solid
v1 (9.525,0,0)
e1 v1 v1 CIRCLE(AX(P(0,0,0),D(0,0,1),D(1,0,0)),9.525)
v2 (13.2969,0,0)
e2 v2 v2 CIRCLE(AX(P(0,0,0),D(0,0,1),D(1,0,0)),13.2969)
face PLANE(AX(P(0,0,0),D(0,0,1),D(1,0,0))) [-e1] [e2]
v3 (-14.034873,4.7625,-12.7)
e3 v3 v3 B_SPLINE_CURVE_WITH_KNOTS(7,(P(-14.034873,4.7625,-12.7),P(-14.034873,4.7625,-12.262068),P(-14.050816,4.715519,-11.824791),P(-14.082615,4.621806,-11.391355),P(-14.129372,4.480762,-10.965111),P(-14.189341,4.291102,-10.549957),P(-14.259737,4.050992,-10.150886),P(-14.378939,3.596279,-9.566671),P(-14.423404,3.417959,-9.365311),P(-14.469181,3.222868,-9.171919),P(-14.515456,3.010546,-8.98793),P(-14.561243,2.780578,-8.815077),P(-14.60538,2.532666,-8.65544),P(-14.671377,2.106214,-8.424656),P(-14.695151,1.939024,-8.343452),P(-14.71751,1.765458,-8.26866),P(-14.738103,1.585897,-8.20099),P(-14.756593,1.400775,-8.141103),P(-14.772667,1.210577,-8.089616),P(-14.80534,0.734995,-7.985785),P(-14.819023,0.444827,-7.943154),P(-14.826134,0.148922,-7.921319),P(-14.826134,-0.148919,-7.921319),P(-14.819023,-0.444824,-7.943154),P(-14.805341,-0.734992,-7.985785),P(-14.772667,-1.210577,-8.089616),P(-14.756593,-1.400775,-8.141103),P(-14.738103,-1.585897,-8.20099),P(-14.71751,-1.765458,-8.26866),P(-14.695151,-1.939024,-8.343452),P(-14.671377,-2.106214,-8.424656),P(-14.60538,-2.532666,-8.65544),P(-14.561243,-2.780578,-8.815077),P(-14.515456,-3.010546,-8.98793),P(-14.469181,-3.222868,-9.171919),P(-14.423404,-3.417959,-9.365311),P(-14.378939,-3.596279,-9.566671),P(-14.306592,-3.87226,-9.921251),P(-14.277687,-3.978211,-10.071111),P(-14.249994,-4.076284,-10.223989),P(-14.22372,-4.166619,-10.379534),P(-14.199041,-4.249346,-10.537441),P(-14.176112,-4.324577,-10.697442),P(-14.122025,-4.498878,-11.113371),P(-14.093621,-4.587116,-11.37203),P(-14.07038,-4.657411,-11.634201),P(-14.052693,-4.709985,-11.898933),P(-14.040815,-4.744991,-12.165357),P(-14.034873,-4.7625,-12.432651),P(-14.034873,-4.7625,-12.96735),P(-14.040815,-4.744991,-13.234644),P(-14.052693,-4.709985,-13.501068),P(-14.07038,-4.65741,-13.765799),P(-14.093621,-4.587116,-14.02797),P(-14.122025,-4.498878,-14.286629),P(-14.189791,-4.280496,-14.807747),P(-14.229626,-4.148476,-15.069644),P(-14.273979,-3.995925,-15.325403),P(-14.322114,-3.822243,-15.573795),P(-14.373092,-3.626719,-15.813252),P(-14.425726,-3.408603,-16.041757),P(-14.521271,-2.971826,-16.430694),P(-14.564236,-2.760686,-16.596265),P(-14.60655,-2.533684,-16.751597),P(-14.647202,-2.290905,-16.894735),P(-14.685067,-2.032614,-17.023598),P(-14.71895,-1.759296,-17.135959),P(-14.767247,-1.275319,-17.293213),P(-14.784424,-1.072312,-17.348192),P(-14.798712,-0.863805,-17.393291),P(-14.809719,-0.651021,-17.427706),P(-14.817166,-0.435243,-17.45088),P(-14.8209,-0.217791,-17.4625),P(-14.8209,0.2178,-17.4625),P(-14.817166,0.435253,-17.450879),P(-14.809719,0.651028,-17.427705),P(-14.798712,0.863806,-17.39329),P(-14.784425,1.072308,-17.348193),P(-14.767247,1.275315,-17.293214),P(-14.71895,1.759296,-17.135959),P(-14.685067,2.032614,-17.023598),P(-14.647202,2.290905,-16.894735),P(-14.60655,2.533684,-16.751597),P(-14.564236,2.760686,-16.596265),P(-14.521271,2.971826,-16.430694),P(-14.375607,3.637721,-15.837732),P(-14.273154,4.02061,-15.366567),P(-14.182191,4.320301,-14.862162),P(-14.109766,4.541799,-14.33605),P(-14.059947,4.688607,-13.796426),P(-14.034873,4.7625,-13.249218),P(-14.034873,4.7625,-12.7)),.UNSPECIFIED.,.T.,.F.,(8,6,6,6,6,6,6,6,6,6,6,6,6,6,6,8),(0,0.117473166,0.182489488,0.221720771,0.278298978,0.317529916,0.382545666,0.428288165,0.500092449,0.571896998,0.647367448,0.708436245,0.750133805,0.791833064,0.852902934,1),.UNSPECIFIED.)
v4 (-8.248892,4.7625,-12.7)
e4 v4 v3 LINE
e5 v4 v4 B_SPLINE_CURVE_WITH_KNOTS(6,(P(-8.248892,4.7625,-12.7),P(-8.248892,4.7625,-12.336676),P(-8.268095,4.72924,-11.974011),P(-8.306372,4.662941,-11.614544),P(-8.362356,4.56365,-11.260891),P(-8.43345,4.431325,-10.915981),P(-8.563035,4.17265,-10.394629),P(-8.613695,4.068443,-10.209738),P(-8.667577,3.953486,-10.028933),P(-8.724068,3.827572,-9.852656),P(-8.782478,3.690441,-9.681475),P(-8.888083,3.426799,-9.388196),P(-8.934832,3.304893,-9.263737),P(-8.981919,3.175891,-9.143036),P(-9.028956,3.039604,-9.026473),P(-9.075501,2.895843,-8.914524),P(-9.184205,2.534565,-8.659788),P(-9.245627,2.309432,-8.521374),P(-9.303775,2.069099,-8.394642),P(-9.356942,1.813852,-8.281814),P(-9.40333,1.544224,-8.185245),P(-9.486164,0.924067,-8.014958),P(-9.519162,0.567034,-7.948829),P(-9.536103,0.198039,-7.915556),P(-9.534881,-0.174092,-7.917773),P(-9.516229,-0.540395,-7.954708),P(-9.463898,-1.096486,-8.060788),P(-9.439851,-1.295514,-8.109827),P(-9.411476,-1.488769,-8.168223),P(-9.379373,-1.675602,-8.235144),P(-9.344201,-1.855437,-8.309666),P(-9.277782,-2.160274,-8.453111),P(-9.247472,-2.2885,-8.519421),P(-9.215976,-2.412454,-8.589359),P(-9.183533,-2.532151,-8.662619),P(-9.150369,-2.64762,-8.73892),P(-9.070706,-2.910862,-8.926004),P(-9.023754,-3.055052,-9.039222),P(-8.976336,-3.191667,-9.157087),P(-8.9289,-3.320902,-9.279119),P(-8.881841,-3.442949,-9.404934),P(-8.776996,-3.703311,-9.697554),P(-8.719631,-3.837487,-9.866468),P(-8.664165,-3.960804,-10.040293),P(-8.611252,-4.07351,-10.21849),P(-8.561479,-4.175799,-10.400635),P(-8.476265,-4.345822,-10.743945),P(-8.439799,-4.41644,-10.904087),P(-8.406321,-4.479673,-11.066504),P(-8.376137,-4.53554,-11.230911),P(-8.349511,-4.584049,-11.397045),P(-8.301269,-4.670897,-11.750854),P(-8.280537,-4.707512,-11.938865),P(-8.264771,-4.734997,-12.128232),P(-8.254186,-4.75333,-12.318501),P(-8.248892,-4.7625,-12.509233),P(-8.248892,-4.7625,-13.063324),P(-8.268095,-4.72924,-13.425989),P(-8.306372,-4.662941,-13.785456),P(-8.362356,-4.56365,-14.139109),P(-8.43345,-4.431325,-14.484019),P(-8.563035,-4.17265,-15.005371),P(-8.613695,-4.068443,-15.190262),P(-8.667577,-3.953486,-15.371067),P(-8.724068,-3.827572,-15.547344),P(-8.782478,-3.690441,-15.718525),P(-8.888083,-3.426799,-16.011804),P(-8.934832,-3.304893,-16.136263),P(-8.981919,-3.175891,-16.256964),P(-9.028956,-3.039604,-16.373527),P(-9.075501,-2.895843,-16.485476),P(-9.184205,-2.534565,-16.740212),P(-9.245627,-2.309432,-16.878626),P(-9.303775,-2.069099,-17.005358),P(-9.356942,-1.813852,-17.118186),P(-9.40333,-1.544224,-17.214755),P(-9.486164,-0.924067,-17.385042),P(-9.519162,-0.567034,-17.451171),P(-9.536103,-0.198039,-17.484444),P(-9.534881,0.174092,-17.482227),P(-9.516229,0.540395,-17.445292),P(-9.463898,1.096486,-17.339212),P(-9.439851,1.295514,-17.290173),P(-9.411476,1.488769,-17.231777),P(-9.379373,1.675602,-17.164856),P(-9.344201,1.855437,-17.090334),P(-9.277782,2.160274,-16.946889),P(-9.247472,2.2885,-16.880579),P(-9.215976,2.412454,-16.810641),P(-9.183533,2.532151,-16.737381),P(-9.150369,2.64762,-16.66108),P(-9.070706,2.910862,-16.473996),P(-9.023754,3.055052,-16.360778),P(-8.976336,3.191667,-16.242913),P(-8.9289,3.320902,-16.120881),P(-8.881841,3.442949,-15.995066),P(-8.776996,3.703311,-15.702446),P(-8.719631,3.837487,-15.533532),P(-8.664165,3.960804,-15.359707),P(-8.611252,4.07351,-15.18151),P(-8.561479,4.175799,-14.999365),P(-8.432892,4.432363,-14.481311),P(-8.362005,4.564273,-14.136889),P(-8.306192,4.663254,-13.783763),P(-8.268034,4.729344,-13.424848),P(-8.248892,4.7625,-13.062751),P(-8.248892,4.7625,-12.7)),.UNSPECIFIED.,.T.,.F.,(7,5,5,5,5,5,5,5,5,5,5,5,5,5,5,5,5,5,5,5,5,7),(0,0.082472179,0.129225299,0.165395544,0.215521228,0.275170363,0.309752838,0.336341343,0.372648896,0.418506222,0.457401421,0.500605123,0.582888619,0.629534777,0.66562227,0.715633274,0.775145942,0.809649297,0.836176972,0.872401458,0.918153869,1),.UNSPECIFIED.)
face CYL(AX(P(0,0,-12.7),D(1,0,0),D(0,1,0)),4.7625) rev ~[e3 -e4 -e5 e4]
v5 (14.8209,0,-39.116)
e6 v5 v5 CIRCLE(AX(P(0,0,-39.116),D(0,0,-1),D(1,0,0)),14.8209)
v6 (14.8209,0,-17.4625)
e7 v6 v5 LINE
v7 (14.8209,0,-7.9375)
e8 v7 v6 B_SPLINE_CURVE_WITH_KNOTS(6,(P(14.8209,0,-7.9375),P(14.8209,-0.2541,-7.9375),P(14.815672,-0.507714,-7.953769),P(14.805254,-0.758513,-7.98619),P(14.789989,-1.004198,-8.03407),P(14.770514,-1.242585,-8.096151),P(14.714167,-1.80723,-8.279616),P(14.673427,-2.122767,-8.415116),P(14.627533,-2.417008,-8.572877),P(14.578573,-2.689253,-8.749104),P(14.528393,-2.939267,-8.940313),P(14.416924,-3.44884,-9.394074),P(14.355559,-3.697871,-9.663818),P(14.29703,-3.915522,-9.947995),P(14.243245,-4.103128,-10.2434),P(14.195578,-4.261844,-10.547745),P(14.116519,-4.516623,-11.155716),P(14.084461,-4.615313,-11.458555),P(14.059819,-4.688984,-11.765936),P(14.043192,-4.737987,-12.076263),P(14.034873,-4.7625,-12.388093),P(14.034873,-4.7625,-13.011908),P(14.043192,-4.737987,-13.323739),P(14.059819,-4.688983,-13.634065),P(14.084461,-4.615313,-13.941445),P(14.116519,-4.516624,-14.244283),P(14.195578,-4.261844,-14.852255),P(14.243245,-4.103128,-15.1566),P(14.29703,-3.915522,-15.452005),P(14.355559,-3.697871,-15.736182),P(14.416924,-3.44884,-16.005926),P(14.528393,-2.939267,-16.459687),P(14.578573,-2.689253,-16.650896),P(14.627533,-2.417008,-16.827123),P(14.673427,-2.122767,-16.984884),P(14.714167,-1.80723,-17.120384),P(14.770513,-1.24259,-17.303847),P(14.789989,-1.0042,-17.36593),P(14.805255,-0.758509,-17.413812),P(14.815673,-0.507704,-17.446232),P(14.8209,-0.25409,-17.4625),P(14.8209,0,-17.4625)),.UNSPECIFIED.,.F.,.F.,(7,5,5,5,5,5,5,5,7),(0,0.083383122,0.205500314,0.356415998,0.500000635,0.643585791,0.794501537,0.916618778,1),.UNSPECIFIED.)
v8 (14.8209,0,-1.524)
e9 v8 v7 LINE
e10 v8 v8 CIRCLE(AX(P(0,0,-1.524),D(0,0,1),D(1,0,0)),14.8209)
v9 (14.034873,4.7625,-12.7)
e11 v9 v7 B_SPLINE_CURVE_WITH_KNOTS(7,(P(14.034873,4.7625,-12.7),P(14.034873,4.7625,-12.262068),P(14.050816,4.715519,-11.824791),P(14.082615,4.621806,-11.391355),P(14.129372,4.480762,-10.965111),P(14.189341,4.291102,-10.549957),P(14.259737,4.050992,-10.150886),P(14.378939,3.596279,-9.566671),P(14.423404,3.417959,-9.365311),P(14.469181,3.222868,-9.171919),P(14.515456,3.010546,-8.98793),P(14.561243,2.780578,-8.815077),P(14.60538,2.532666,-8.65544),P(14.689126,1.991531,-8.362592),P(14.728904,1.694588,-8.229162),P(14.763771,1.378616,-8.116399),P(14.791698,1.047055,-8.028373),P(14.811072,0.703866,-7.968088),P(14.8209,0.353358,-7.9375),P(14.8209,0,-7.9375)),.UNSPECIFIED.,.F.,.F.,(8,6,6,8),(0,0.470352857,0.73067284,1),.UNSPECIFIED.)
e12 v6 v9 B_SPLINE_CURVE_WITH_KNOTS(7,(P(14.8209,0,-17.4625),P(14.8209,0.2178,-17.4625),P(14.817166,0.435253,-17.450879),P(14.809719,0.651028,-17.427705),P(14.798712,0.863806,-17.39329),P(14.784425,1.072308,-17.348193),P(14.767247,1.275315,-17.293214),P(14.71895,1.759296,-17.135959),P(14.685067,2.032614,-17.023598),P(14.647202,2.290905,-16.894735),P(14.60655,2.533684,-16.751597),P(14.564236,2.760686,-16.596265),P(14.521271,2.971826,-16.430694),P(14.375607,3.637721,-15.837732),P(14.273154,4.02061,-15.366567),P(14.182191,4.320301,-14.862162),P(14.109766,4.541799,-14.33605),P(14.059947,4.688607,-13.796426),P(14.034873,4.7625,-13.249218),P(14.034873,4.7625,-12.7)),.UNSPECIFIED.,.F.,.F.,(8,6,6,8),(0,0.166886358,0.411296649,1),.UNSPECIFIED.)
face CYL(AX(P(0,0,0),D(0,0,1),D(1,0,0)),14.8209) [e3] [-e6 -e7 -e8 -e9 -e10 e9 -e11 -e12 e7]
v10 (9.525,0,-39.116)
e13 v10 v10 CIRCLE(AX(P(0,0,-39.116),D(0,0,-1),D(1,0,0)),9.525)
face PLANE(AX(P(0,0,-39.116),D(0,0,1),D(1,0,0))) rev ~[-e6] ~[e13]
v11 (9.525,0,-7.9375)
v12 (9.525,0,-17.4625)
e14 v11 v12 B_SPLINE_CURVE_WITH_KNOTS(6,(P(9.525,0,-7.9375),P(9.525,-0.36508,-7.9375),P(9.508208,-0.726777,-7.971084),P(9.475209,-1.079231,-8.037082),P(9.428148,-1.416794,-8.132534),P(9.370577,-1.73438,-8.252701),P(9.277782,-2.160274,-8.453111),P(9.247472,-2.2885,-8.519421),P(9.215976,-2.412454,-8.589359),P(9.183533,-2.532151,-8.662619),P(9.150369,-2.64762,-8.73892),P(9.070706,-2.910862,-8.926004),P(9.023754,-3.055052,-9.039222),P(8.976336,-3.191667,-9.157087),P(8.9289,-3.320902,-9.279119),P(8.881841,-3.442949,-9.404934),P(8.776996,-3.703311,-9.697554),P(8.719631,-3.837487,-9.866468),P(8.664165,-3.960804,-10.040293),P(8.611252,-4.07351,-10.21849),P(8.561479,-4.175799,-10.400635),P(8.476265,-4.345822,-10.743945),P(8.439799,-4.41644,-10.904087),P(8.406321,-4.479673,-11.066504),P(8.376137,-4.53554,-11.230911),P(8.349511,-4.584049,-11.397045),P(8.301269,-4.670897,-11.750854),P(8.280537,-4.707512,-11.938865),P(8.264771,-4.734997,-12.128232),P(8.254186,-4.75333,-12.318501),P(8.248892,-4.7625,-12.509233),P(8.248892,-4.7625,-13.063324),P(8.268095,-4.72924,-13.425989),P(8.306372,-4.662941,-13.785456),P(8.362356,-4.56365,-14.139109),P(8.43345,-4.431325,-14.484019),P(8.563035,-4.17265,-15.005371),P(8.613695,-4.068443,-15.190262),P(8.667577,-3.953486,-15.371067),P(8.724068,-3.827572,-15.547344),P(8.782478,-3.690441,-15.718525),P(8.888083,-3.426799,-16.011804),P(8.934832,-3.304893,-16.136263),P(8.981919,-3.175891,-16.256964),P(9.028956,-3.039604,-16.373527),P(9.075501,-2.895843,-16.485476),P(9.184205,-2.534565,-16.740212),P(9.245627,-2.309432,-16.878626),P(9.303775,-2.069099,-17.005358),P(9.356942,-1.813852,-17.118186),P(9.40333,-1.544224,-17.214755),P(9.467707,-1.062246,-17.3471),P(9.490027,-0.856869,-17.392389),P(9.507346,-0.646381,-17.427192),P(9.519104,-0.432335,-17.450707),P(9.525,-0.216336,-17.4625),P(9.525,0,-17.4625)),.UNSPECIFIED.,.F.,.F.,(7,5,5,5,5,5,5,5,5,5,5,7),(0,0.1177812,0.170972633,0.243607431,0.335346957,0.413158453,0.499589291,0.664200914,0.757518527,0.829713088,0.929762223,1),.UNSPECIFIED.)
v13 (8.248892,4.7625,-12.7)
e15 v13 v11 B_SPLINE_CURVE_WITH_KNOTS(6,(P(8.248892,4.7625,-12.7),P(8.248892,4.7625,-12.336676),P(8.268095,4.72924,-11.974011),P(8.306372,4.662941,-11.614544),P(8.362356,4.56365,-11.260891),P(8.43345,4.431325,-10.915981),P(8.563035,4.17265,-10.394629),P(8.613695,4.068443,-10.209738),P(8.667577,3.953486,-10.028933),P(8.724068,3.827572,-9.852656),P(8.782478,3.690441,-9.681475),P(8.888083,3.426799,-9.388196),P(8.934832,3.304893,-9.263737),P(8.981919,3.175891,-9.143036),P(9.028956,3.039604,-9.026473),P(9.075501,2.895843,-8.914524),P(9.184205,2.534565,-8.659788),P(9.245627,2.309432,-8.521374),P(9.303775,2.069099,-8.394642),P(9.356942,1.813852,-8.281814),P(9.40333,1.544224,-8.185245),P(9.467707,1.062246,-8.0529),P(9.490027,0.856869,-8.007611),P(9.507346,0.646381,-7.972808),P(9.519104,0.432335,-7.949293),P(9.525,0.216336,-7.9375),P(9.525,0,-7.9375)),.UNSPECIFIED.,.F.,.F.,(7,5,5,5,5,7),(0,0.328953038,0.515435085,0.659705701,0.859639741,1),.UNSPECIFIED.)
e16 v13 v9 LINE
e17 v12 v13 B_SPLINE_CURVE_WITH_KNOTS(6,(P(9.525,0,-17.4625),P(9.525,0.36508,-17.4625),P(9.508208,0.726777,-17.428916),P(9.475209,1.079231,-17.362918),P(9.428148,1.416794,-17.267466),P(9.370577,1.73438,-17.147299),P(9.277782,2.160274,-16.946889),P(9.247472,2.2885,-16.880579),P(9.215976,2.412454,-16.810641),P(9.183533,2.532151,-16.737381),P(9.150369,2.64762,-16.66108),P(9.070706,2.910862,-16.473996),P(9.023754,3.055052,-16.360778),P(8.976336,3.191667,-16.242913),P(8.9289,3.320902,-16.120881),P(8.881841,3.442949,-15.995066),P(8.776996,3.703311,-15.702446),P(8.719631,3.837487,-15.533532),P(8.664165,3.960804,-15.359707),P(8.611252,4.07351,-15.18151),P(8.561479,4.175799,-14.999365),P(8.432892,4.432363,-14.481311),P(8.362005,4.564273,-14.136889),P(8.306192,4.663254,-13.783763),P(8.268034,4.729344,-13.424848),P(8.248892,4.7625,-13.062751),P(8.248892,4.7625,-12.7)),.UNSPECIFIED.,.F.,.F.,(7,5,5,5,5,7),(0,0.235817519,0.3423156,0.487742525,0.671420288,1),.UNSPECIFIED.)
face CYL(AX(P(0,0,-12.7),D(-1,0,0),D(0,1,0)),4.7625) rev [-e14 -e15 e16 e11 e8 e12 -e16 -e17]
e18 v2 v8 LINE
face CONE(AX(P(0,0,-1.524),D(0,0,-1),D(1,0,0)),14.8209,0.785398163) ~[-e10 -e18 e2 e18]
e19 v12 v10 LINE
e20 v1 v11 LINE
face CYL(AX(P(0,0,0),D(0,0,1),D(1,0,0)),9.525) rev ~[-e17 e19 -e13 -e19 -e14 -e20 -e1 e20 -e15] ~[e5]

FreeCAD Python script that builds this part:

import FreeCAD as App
import Part
import Sketcher
from FreeCAD import Vector
Q = App.Units.Quantity


def edges_at(feature, points):
    """Names of the edges that pass closest to the given points."""
    edges = feature.Shape.Edges
    near = lambda p: min(range(len(edges)), key=lambda i: edges[i].distToShape(Part.Vertex(*p))[0])
    return sorted({f"Edge{near(p) + 1}" for p in points})

doc = App.newDocument("Part")
params = doc.addObject("Spreadsheet::Sheet", "Params")
for row, (alias, value) in enumerate([
    ("sketch1_diameter", "0.75 in"),
    ("sketch1_diameter2", "1.167 in"),
    ("pad1_length", "1.54 in"),
    ("chamfer_size", "0.06 in"),
    ("sketch2_diameter", "0.375 in"),
], start=1):
    params.set(f"A{row}", alias)
    params.set(f"B{row}", "=" + value)
    params.setAlias(f"B{row}", alias)

body = doc.addObject("PartDesign::Body", "Body")

# Sketch on XY plane
sketch1 = body.newObject("Sketcher::SketchObject", "Sketch")
sketch1.AttachmentSupport = (doc.getObject("XY_Plane"), [""])
sketch1.MapMode = "FlatFace"
sketch1.addGeometry(Part.Circle(Vector(0, 0, 0), Vector(0, 0, 1), 15), False)
sketch1.addGeometry(Part.Circle(Vector(0, 0, 0), Vector(0, 0, 1), 10), False)
sketch1.addConstraint(Sketcher.Constraint("Coincident", 0, 3, -1, 1))
sketch1.addConstraint(Sketcher.Constraint("Coincident", 1, 3, -1, 1))
sketch1.addConstraint(Sketcher.Constraint("Diameter", 1, Q("0.75 in")))
sketch1.addConstraint(Sketcher.Constraint("Diameter", 0, Q("1.167 in")))
sketch1.setExpression("Constraints[2]", "Params.sketch1_diameter")
sketch1.setExpression("Constraints[3]", "Params.sketch1_diameter2")
pad1 = body.newObject("PartDesign::Pad", "Pad")
pad1.Profile = sketch1
pad1.setExpression("Length", "Params.pad1_length")
pad1.Reversed = True
doc.recompute()

chamfer = body.newObject("PartDesign::Chamfer", "Chamfer")
chamfer.Base = (pad1, edges_at(pad1, [(-14.821, 0, 0)]))
chamfer.setExpression("Size", "Params.chamfer_size")

# Sketch on YZ plane
sketch2 = body.newObject("Sketcher::SketchObject", "Sketch001")
sketch2.AttachmentSupport = (doc.getObject("YZ_Plane"), [""])
sketch2.MapMode = "FlatFace"
sketch2.addGeometry(Part.Circle(Vector(0, -12.7, 0), Vector(0, 0, 1), 4.8), False)
sketch2.addConstraint(Sketcher.Constraint("PointOnObject", 0, 3, -2))
sketch2.addConstraint(Sketcher.Constraint("Diameter", 0, Q("0.375 in")))
sketch2.addConstraint(Sketcher.Constraint("DistanceY", 0, 3, -1, 1, Q("0.5 in")))
sketch2.setExpression("Constraints[1]", "Params.sketch2_diameter")
pocket1 = body.newObject("PartDesign::Pocket", "Pocket")
pocket1.Profile = sketch2
pocket1.Type = "ThroughAll"
pocket1.Midplane = True

doc.recompute()
